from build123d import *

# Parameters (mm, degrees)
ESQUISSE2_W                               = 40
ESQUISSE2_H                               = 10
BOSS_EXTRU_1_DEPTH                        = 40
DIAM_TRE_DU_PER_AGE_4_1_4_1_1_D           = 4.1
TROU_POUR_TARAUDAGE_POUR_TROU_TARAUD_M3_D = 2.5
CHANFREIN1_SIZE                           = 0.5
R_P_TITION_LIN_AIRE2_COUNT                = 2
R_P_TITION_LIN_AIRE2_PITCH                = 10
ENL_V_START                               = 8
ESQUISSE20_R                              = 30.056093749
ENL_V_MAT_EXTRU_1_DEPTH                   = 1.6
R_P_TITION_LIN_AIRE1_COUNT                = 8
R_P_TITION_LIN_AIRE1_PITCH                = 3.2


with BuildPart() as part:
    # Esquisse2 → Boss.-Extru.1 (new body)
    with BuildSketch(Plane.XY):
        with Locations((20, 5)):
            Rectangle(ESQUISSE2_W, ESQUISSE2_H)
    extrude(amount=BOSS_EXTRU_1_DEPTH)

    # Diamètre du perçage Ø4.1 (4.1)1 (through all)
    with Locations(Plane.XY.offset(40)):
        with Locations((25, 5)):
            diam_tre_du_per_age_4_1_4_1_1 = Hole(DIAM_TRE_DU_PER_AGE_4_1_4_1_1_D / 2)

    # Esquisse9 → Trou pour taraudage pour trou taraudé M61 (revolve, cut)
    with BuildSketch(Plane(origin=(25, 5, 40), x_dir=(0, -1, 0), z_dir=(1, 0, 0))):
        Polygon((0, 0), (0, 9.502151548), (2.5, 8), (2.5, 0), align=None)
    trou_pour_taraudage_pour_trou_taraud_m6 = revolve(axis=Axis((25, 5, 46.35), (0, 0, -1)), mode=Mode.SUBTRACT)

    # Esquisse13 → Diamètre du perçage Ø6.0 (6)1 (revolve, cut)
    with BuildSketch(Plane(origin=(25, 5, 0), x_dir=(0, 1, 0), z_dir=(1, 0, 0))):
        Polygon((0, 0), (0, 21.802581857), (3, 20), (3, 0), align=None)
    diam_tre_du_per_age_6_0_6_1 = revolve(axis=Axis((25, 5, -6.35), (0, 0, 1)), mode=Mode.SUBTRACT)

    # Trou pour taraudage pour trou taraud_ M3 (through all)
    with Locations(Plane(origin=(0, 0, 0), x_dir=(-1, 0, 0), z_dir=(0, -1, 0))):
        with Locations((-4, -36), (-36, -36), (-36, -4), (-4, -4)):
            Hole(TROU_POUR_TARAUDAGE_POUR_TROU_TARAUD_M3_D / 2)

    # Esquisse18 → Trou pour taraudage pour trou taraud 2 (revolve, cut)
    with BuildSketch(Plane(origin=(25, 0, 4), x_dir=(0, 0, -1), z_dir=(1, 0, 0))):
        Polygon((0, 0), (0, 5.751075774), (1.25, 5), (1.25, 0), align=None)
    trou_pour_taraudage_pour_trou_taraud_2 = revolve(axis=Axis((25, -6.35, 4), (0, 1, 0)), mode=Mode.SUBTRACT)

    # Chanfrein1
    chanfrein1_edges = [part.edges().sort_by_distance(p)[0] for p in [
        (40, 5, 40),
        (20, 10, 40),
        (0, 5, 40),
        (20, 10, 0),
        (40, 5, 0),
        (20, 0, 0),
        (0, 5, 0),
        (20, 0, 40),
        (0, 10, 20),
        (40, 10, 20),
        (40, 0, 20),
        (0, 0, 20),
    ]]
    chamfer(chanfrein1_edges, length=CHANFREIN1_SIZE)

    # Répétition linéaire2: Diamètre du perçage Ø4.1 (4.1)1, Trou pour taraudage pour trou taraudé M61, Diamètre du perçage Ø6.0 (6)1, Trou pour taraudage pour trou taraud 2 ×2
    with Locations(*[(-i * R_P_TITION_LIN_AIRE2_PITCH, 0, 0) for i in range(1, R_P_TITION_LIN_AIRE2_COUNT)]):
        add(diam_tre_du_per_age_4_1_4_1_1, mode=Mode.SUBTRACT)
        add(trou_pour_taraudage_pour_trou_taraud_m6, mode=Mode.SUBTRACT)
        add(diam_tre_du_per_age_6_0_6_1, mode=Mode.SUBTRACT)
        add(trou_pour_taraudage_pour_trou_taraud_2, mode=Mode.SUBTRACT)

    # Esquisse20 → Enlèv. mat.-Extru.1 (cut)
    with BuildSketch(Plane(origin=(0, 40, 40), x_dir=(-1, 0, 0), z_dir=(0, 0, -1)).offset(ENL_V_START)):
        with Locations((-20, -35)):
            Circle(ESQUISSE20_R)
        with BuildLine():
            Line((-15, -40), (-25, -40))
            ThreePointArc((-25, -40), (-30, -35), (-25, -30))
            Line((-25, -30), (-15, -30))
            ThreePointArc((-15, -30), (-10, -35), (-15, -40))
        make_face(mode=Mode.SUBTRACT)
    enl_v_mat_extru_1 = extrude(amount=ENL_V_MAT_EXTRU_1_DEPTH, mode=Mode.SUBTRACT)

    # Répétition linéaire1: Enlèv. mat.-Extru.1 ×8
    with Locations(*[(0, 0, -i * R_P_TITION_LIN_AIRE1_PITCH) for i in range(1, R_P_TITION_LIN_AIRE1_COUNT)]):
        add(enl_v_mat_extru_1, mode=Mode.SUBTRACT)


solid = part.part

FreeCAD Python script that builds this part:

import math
import FreeCAD as App
import Part
import Sketcher
from FreeCAD import Vector
Q = App.Units.Quantity


def edges_at(feature, points):
    """Names of the edges that pass closest to the given points."""
    edges = feature.Shape.Edges
    near = lambda p: min(range(len(edges)), key=lambda i: edges[i].distToShape(Part.Vertex(*p))[0])
    return sorted({f"Edge{near(p) + 1}" for p in points})

doc = App.newDocument("Part")
body = doc.addObject("PartDesign::Body", "Body")

# Sketch on XY plane
sketch1 = doc.addObject("Sketcher::SketchObject", "Sketch")
body.addObject(sketch1)
sketch1.AttachmentSupport = (doc.XY_Plane, [""])
sketch1.MapMode = "FlatFace"
sketch1.addGeometry([
    Part.LineSegment(Vector(0, 10, 0), Vector(0, 0, 0)),
    Part.LineSegment(Vector(0, 0, 0), Vector(40, 0, 0)),
    Part.LineSegment(Vector(40, 0, 0), Vector(40, 10, 0)),
    Part.LineSegment(Vector(40, 10, 0), Vector(0, 10, 0)),
], False)
sketch1.addConstraint([
    Sketcher.Constraint("Coincident", 0, 2, 1, 1),
    Sketcher.Constraint("Coincident", 1, 2, 2, 1),
    Sketcher.Constraint("Coincident", 2, 2, 3, 1),
    Sketcher.Constraint("Coincident", 3, 2, 0, 1),
    Sketcher.Constraint("Vertical", 0),
    Sketcher.Constraint("Horizontal", 1),
    Sketcher.Constraint("Vertical", 2),
    Sketcher.Constraint("Horizontal", 3),
    Sketcher.Constraint("Coincident", 0, 2, -1, 1),
    Sketcher.Constraint("DistanceX", 1, 1, 1, 2, Q("40 mm")),
    Sketcher.Constraint("DistanceY", 0, 2, 0, 1, Q("10 mm")),
])
pad1 = doc.addObject("PartDesign::Pad", "Pad")
body.addObject(pad1)
pad1.Profile = sketch1
pad1.Length = 40

# Sketch on XY plane
sketch2 = doc.addObject("Sketcher::SketchObject", "Sketch001")
body.addObject(sketch2)
sketch2.AttachmentSupport = (doc.XY_Plane, [""])
sketch2.MapMode = "FlatFace"
sketch2.AttachmentOffset = App.Placement(Vector(0, 0, 40), App.Rotation())
sketch2.addGeometry(Part.Circle(Vector(25, 5, 0), Vector(0, 0, 1), 2), False)
sketch2.addConstraint([
    Sketcher.Constraint("Diameter", 0, Q("4.1 mm")),
    Sketcher.Constraint("DistanceX", -1, 1, 0, 3, Q("25 mm")),
    Sketcher.Constraint("DistanceY", -1, 1, 0, 3, Q("5 mm")),
])
doc.recompute()
hole = doc.addObject("PartDesign::Hole", "Hole")
body.addObject(hole)
hole.Profile = sketch2
hole.ThreadType = "None"
hole.Diameter = 4.1
hole.DepthType = "ThroughAll"

# Sketch on YZ plane
sketch3 = doc.addObject("Sketcher::SketchObject", "Sketch002")
body.addObject(sketch3)
sketch3.AttachmentSupport = (doc.YZ_Plane, [""])
sketch3.MapMode = "FlatFace"
sketch3.AttachmentOffset = App.Placement(Vector(0, 0, 25), App.Rotation())
sketch3.addGeometry([
    Part.LineSegment(Vector(5, 30.5, 0), Vector(5, 40, 0)),
    Part.LineSegment(Vector(5, 40, 0), Vector(2.5, 40, 0)),
    Part.LineSegment(Vector(2.5, 40, 0), Vector(2.5, 32, 0)),
    Part.LineSegment(Vector(2.5, 32, 0), Vector(5, 30.5, 0)),
], False)
sketch3.addGeometry(Part.LineSegment(Vector(5, 40, 0), Vector(5, 30.5, 0)), True)  # axis
sketch3.addConstraint([
    Sketcher.Constraint("Coincident", 0, 2, 1, 1),
    Sketcher.Constraint("Coincident", 1, 2, 2, 1),
    Sketcher.Constraint("Coincident", 2, 2, 3, 1),
    Sketcher.Constraint("Coincident", 3, 2, 0, 1),
    Sketcher.Constraint("Vertical", 0),
    Sketcher.Constraint("Horizontal", 1),
    Sketcher.Constraint("Vertical", 2),
    Sketcher.Constraint("Vertical", 4),
    Sketcher.Constraint("Coincident", 4, 1, 0, 2),
    Sketcher.Constraint("Equal", 0, 4),
    Sketcher.Constraint("DistanceY", 2, 2, 2, 1, Q("8 mm")),
    Sketcher.Constraint("Angle", 3, Q("-31 deg")),
    Sketcher.Constraint("DistanceX", 1, 2, 1, 1, Q("2.5 mm")),
    Sketcher.Constraint("DistanceX", -1, 1, 0, 2, Q("5 mm")),
    Sketcher.Constraint("DistanceY", -1, 1, 0, 2, Q("40 mm")),
])
groove = doc.addObject("PartDesign::Groove", "Groove")
body.addObject(groove)
groove.Profile = sketch3
groove.ReferenceAxis = (sketch3, ["Axis0"])
groove.Angle = 360

# Sketch on YZ plane
sketch4 = doc.addObject("Sketcher::SketchObject", "Sketch003")
body.addObject(sketch4)
sketch4.AttachmentSupport = (doc.YZ_Plane, [""])
sketch4.MapMode = "FlatFace"
sketch4.AttachmentOffset = App.Placement(Vector(0, 0, 25), App.Rotation())
sketch4.addGeometry([
    Part.LineSegment(Vector(5, 21.8, 0), Vector(5, 0, 0)),
    Part.LineSegment(Vector(5, 0, 0), Vector(8, 0, 0)),
    Part.LineSegment(Vector(8, 0, 0), Vector(8, 20, 0)),
    Part.LineSegment(Vector(8, 20, 0), Vector(5, 21.8, 0)),
], False)
sketch4.addGeometry(Part.LineSegment(Vector(5, 0, 0), Vector(5, 21.8, 0)), True)  # axis
sketch4.addConstraint([
    Sketcher.Constraint("Coincident", 0, 2, 1, 1),
    Sketcher.Constraint("Coincident", 1, 2, 2, 1),
    Sketcher.Constraint("Coincident", 2, 2, 3, 1),
    Sketcher.Constraint("Coincident", 3, 2, 0, 1),
    Sketcher.Constraint("Vertical", 0),
    Sketcher.Constraint("Horizontal", 1),
    Sketcher.Constraint("Vertical", 2),
    Sketcher.Constraint("Vertical", 4),
    Sketcher.Constraint("Coincident", 4, 1, 0, 2),
    Sketcher.Constraint("PointOnObject", 0, 2, -1),
    Sketcher.Constraint("Equal", 0, 4),
    Sketcher.Constraint("DistanceX", 1, 1, 1, 2, Q("3 mm")),
    Sketcher.Constraint("DistanceY", 2, 1, 2, 2, Q("20 mm")),
    Sketcher.Constraint("Angle", 3, Q("149 deg")),
    Sketcher.Constraint("DistanceX", -1, 1, 0, 2, Q("5 mm")),
])
groove2 = doc.addObject("PartDesign::Groove", "Groove001")
body.addObject(groove2)
groove2.Profile = sketch4
groove2.ReferenceAxis = (sketch4, ["Axis0"])
groove2.Angle = 360

# Sketch on XZ plane
sketch5 = doc.addObject("Sketcher::SketchObject", "Sketch004")
body.addObject(sketch5)
sketch5.AttachmentSupport = (doc.XZ_Plane, [""])
sketch5.MapMode = "FlatFace"
sketch5.addGeometry([
    Part.Circle(Vector(4, 36, 0), Vector(0, 0, 1), 1.2),
    Part.Circle(Vector(36, 36, 0), Vector(0, 0, 1), 1.2),
    Part.Circle(Vector(36, 4, 0), Vector(0, 0, 1), 1.2),
    Part.Circle(Vector(4, 4, 0), Vector(0, 0, 1), 1.2),
], False)
sketch5.addConstraint([
    Sketcher.Constraint("Equal", 0, 1),
    Sketcher.Constraint("Equal", 1, 2),
    Sketcher.Constraint("Equal", 2, 3),
    Sketcher.Constraint("Horizontal", 0, 3, 1, 3),
    Sketcher.Constraint("Horizontal", 2, 3, 3, 3),
    Sketcher.Constraint("Vertical", 1, 3, 2, 3),
    Sketcher.Constraint("Vertical", 0, 3, 3, 3),
    Sketcher.Constraint("Diameter", 0, Q("2.5 mm")),
    Sketcher.Constraint("DistanceX", -1, 1, 0, 3, Q("4 mm")),
    Sketcher.Constraint("DistanceY", -1, 1, 0, 3, Q("36 mm")),
    Sketcher.Constraint("DistanceX", -1, 1, 1, 3, Q("36 mm")),
    Sketcher.Constraint("DistanceY", -1, 1, 2, 3, Q("4 mm")),
])
doc.recompute()
hole2 = doc.addObject("PartDesign::Hole", "Hole001")
body.addObject(hole2)
hole2.Profile = sketch5
hole2.ThreadType = "None"
hole2.Diameter = 2.5
hole2.DepthType = "ThroughAll"

# Sketch on YZ plane
sketch6 = doc.addObject("Sketcher::SketchObject", "Sketch005")
body.addObject(sketch6)
sketch6.AttachmentSupport = (doc.YZ_Plane, [""])
sketch6.MapMode = "FlatFace"
sketch6.AttachmentOffset = App.Placement(Vector(0, 0, 25), App.Rotation())
sketch6.addGeometry([
    Part.LineSegment(Vector(5.8, 4, 0), Vector(0, 4, 0)),
    Part.LineSegment(Vector(0, 4, 0), Vector(0, 2.8, 0)),
    Part.LineSegment(Vector(0, 2.8, 0), Vector(5, 2.8, 0)),
    Part.LineSegment(Vector(5, 2.8, 0), Vector(5.8, 4, 0)),
], False)
sketch6.addGeometry(Part.LineSegment(Vector(0, 4, 0), Vector(5.8, 4, 0)), True)  # axis
sketch6.addConstraint([
    Sketcher.Constraint("Coincident", 0, 2, 1, 1),
    Sketcher.Constraint("Coincident", 1, 2, 2, 1),
    Sketcher.Constraint("Coincident", 2, 2, 3, 1),
    Sketcher.Constraint("Coincident", 3, 2, 0, 1),
    Sketcher.Constraint("Horizontal", 0),
    Sketcher.Constraint("Vertical", 1),
    Sketcher.Constraint("Horizontal", 2),
    Sketcher.Constraint("Horizontal", 4),
    Sketcher.Constraint("Coincident", 4, 1, 0, 2),
    Sketcher.Constraint("PointOnObject", 0, 2, -2),
    Sketcher.Constraint("Equal", 0, 4),
    Sketcher.Constraint("DistanceX", 2, 1, 2, 2, Q("5 mm")),
    Sketcher.Constraint("Angle", 3, Q("59 deg")),
    Sketcher.Constraint("DistanceY", -1, 1, 0, 2, Q("4 mm")),
    Sketcher.Constraint("DistanceY", 1, 2, 1, 1, Q("1.25 mm")),
])
groove3 = doc.addObject("PartDesign::Groove", "Groove002")
body.addObject(groove3)
groove3.Profile = sketch6
groove3.ReferenceAxis = (sketch6, ["Axis0"])
groove3.Angle = 360
doc.recompute()

chamfer = doc.addObject("PartDesign::Chamfer", "Chamfer")
body.addObject(chamfer)
chamfer.Base = (groove3, edges_at(groove3, [
    (40, 5, 40),
    (20, 10, 40),
    (0, 5, 40),
    (20, 10, 0),
    (40, 5, 0),
    (20, 0, 0),
    (0, 5, 0),
    (20, 0, 40),
    (0, 10, 20),
    (40, 10, 20),
    (40, 0, 20),
    (0, 0, 20),
]))
chamfer.Size = 0.5
doc.recompute()

linearpattern = doc.addObject("PartDesign::LinearPattern", "LinearPattern")
body.addObject(linearpattern)
linearpattern.Originals = [hole, groove, groove2, groove3]
linearpattern.Direction = (doc.X_Axis, [""])
linearpattern.Mode = "offset"
linearpattern.Offset = 10
linearpattern.Occurrences = 2
linearpattern.Reversed = True
body.Tip = linearpattern

# Sketch on XY plane
sketch7 = doc.addObject("Sketcher::SketchObject", "Sketch006")
body.addObject(sketch7)
sketch7.AttachmentSupport = (doc.XY_Plane, [""])
sketch7.MapMode = "FlatFace"
sketch7.AttachmentOffset = App.Placement(Vector(0, 0, 32), App.Rotation())
sketch7.addGeometry([
    Part.Circle(Vector(20, 5, 0), Vector(0, 0, 1), 30),  # 0
    Part.ArcOfCircle(Part.Circle(Vector(15, 5, 0), Vector(0, 0, 1), 5), math.radians(90), math.radians(270)),  # 1
    Part.LineSegment(Vector(15, 0, 0), Vector(25, 0, 0)),  # 2
    Part.ArcOfCircle(Part.Circle(Vector(25, 5, 0), Vector(0, 0, 1), 5), math.radians(-90), math.radians(90)),  # 3
    Part.LineSegment(Vector(25, 10, 0), Vector(15, 10, 0)),  # 4
], False)
sketch7.addConstraint([
    Sketcher.Constraint("Tangent", 1, 2, 2, 1),
    Sketcher.Constraint("Tangent", 2, 2, 3, 1),
    Sketcher.Constraint("Tangent", 3, 2, 4, 1),
    Sketcher.Constraint("Tangent", 4, 2, 1, 1),
    Sketcher.Constraint("Horizontal", 2),
    Sketcher.Constraint("Horizontal", 4),
    Sketcher.Constraint("PointOnObject", 1, 2, -1),
    Sketcher.Constraint("Horizontal", 0, 3, 1, 3),
    Sketcher.Constraint("Radius", 1, Q("5 mm")),
    Sketcher.Constraint("DistanceX", 2, 1, 2, 2, Q("10 mm")),
    Sketcher.Constraint("DistanceX", -1, 1, 0, 3, Q("20 mm")),
    Sketcher.Constraint("DistanceX", -1, 1, 1, 3, Q("15 mm")),
    Sketcher.Constraint("Diameter", 0, Q("60.112187 mm")),
])
pocket1 = doc.addObject("PartDesign::Pocket", "Pocket")
body.addObject(pocket1)
pocket1.Profile = sketch7
pocket1.Length = 1.6
doc.recompute()

linearpattern2 = doc.addObject("PartDesign::LinearPattern", "LinearPattern001")
body.addObject(linearpattern2)
linearpattern2.Originals = [pocket1]
linearpattern2.Direction = (doc.Z_Axis, [""])
linearpattern2.Mode = "offset"
linearpattern2.Offset = 3.2
linearpattern2.Occurrences = 8
linearpattern2.Reversed = True
body.Tip = linearpattern2

doc.recompute()
